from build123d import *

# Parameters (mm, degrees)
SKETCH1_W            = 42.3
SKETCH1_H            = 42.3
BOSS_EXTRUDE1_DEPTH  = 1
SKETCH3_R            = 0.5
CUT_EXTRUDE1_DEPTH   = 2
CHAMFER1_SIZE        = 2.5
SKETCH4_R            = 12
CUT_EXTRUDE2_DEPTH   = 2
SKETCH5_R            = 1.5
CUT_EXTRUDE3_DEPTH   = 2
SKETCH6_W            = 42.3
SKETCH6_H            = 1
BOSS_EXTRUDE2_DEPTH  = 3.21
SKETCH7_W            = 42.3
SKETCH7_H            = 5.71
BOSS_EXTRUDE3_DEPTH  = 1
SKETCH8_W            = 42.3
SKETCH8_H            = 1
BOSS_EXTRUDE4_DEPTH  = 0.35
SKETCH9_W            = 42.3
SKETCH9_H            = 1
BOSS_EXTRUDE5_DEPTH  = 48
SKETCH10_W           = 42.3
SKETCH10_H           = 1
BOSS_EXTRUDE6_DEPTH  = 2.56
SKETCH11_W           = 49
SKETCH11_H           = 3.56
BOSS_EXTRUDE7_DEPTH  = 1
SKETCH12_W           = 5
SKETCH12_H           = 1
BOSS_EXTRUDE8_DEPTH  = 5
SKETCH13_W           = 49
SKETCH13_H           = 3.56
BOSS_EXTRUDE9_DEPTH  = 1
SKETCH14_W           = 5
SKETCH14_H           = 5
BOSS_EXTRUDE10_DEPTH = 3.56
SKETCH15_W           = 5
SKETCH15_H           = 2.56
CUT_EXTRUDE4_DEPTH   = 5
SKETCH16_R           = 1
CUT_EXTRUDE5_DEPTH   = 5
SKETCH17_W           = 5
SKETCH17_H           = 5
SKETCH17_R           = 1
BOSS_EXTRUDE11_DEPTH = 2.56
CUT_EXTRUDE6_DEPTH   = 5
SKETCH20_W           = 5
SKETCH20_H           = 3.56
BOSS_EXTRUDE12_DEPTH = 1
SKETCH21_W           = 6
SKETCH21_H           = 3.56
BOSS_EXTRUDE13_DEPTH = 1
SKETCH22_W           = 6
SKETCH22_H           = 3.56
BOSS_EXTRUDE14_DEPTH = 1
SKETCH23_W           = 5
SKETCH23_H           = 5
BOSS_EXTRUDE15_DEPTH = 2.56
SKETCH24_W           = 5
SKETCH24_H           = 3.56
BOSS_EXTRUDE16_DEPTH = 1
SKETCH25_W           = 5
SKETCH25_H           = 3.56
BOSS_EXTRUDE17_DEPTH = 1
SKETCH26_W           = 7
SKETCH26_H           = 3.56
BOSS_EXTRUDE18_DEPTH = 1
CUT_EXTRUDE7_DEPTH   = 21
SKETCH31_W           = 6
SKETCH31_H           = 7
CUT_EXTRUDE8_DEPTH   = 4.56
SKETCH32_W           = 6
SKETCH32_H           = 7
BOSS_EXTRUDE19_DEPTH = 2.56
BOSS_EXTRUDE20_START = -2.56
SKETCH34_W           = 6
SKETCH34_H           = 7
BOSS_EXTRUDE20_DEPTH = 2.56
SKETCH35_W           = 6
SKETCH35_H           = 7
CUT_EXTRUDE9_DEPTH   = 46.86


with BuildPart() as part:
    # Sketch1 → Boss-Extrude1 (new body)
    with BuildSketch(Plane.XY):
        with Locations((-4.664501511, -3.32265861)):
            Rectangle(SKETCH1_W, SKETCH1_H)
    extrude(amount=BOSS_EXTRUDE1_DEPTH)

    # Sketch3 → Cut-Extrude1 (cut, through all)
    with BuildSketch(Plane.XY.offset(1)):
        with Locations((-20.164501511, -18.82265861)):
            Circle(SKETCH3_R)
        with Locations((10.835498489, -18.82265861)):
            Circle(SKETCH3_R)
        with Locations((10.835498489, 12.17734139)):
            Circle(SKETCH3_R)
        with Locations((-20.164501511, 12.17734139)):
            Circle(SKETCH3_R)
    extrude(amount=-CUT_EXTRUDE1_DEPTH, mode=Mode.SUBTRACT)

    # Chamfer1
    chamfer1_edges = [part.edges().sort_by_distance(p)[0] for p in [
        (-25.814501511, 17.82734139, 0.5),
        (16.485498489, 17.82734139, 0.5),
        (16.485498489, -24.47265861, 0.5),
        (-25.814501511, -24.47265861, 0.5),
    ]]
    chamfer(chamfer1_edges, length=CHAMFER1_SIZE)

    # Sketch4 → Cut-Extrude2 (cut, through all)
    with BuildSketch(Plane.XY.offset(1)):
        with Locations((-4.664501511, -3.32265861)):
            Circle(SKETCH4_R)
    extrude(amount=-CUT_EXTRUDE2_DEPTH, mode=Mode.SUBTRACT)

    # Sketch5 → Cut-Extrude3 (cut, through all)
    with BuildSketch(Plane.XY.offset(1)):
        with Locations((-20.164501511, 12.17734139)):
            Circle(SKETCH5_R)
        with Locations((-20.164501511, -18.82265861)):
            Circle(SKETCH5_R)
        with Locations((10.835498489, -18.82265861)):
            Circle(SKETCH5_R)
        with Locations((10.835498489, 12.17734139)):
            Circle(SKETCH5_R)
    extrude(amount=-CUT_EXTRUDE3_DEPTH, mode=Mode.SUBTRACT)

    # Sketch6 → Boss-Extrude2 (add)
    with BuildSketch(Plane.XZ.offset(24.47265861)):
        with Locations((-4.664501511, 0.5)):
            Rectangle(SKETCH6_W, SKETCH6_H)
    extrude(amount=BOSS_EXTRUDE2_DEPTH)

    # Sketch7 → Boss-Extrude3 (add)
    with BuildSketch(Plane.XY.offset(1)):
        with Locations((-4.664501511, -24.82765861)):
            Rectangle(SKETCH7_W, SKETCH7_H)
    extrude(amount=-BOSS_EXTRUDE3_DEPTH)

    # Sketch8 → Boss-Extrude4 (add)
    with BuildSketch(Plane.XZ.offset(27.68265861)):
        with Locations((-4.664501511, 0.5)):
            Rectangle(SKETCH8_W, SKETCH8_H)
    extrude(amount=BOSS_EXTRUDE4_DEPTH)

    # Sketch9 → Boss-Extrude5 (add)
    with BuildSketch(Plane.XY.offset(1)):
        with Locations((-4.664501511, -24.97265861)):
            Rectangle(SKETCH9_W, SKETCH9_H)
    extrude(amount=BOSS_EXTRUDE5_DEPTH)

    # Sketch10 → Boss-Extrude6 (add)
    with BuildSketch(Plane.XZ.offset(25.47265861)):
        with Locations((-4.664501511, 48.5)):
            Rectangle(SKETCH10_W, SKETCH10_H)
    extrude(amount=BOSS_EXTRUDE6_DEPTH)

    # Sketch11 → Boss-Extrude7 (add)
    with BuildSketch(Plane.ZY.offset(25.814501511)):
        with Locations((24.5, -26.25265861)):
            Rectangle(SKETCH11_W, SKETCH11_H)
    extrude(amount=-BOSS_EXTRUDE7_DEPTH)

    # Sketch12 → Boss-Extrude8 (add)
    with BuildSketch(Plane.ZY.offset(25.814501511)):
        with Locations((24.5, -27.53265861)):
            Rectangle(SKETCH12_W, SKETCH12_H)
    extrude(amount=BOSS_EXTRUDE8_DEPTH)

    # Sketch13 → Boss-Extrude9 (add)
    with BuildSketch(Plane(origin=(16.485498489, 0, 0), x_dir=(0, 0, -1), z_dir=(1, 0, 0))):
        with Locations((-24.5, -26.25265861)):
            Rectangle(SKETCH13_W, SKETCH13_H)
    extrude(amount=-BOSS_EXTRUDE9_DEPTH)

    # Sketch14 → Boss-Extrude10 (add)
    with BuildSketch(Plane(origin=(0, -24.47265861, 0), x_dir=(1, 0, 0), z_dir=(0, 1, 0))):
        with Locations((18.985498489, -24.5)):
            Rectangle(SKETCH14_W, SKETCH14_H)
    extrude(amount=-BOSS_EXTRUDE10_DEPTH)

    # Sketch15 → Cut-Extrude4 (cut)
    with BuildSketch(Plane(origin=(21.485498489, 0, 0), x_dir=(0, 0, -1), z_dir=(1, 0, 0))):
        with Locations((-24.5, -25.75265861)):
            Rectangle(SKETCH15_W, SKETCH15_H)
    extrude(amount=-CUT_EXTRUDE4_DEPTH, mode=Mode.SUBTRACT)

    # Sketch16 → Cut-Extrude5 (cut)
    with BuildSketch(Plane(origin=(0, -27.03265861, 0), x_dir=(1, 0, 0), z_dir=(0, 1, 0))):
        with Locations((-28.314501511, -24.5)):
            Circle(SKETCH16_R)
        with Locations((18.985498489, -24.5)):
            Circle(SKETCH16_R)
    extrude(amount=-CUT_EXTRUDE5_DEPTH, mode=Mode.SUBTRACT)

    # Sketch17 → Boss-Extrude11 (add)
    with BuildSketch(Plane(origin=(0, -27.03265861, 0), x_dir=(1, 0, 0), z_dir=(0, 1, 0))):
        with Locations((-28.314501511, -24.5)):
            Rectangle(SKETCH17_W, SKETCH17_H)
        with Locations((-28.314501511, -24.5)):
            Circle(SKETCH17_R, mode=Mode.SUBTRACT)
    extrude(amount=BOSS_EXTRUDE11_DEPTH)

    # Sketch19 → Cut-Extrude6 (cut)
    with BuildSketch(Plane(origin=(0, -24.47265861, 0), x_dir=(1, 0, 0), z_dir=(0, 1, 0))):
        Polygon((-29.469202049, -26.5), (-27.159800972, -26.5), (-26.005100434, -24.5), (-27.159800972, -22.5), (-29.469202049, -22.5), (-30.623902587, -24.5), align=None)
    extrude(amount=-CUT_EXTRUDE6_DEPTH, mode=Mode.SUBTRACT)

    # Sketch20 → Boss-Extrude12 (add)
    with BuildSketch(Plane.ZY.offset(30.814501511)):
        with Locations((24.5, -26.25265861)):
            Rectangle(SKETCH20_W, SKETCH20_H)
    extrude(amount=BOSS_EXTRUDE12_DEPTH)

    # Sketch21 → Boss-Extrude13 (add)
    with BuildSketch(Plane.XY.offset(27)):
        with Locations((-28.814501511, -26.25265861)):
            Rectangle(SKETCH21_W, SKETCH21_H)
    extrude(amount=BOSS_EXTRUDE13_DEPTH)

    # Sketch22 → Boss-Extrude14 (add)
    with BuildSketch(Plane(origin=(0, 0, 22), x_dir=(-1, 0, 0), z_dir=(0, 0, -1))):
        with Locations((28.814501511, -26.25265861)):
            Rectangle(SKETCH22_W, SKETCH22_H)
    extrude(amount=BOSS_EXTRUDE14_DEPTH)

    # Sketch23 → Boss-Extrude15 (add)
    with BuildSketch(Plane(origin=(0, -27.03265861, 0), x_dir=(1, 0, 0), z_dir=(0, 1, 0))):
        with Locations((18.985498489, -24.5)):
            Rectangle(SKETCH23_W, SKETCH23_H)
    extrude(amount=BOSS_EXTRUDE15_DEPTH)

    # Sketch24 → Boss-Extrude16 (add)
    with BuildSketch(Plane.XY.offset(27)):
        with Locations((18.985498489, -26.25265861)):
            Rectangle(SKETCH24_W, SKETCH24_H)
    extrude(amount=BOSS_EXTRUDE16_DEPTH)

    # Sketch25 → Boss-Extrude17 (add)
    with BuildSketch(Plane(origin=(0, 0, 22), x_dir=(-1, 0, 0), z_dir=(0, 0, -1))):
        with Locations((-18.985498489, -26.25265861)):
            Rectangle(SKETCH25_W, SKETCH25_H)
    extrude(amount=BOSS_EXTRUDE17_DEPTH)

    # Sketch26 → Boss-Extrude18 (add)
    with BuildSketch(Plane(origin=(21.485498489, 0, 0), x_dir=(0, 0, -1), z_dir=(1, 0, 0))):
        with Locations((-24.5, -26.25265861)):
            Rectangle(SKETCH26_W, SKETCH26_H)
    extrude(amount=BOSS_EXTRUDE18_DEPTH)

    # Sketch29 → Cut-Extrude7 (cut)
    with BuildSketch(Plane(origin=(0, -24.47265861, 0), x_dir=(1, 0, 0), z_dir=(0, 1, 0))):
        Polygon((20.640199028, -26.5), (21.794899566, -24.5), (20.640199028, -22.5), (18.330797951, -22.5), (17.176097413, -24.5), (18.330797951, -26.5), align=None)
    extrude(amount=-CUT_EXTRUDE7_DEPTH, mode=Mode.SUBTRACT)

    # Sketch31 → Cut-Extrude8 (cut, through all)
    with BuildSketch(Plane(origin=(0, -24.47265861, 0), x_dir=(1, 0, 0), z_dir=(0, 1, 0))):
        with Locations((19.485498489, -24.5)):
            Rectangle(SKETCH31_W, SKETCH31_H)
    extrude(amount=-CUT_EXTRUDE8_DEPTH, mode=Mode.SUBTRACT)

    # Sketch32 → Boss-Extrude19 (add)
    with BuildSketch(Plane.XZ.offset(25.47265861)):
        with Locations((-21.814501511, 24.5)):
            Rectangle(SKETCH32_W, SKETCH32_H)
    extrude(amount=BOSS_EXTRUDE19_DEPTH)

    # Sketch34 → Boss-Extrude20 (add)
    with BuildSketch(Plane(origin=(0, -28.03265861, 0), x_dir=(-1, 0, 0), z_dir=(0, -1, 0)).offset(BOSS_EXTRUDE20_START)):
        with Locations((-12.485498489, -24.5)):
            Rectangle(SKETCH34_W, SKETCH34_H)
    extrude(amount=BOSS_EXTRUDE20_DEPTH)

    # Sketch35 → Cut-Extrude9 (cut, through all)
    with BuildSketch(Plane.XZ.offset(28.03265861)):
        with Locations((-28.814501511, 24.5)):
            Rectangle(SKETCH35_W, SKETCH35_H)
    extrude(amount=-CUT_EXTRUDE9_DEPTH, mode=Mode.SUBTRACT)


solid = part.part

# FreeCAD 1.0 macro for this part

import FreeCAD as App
import Part
import Sketcher
Q = App.Units.Quantity


def edges_at(feature, points):
    """Names of the edges that pass closest to the given points."""
    edges = feature.Shape.Edges
    near = lambda p: min(range(len(edges)), key=lambda i: edges[i].distToShape(Part.Vertex(*p))[0])
    return sorted({f"Edge{near(p) + 1}" for p in points})


def add_polygon(sketch, points):
    """Adds a closed chain of lines whose ends are joined by coincident constraints."""
    first, n = sketch.GeometryCount, len(points)
    for a, b in zip(points, points[1:] + points[:1]):
        sketch.addGeometry(Part.LineSegment(App.Vector(*a, 0), App.Vector(*b, 0)), False)
    for i in range(n):
        sketch.addConstraint(Sketcher.Constraint("Coincident", first + i, 2, first + (i + 1) % n, 1))

doc = App.newDocument("Part")
body = doc.addObject("PartDesign::Body", "Body")

# Sketch on XY plane
sketch1 = doc.addObject("Sketcher::SketchObject", "Sketch")
body.addObject(sketch1)
sketch1.AttachmentSupport = (doc.XY_Plane, [""])
sketch1.MapMode = "FlatFace"
add_polygon(sketch1, [(-26, 18), (-26, -24), (16, -24), (16, 18)])  # lines 0-3
sketch1.addConstraint([
    Sketcher.Constraint("Vertical", 0),
    Sketcher.Constraint("Horizontal", 1),
    Sketcher.Constraint("Vertical", 2),
    Sketcher.Constraint("Horizontal", 3),
    Sketcher.Constraint("Equal", 3, 0),
    Sketcher.Constraint("DistanceX", 1, 1, 1, 2, Q("42.3 mm")),
    Sketcher.Constraint("DistanceX", 0, 2, -1, 1, Q("25.814502 mm")),
    Sketcher.Constraint("DistanceY", 0, 2, -1, 1, Q("24.472659 mm")),
])
pad1 = doc.addObject("PartDesign::Pad", "Pad")
body.addObject(pad1)
pad1.Profile = sketch1
pad1.Length = 1

# Sketch on XY plane
sketch2 = doc.addObject("Sketcher::SketchObject", "Sketch001")
body.addObject(sketch2)
sketch2.AttachmentSupport = (doc.XY_Plane, [""])
sketch2.MapMode = "FlatFace"
sketch2.AttachmentOffset = App.Placement(App.Vector(0, 0, 1), App.Rotation())
sketch2.addGeometry([
    Part.Circle(App.Vector(-20.2, -18.8, 0), App.Vector(0, 0, 1), 0.5),
    Part.Circle(App.Vector(10.8, -18.8, 0), App.Vector(0, 0, 1), 0.5),
    Part.Circle(App.Vector(10.8, 12.2, 0), App.Vector(0, 0, 1), 0.5),
    Part.Circle(App.Vector(-20.2, 12.2, 0), App.Vector(0, 0, 1), 0.5),
], False)
sketch2.addConstraint([
    Sketcher.Constraint("Equal", 0, 1),
    Sketcher.Constraint("Equal", 1, 2),
    Sketcher.Constraint("Equal", 2, 3),
    Sketcher.Constraint("Horizontal", 0, 3, 1, 3),
    Sketcher.Constraint("Horizontal", 2, 3, 3, 3),
    Sketcher.Constraint("Vertical", 1, 3, 2, 3),
    Sketcher.Constraint("Vertical", 0, 3, 3, 3),
    Sketcher.Constraint("Diameter", 0, Q("1 mm")),
    Sketcher.Constraint("DistanceX", 0, 3, 1, 3, Q("31 mm")),
    Sketcher.Constraint("DistanceY", 1, 3, 2, 3, Q("31 mm")),
    Sketcher.Constraint("DistanceX", 0, 3, -1, 1, Q("20.164502 mm")),
    Sketcher.Constraint("DistanceY", 0, 3, -1, 1, Q("18.822659 mm")),
])
pocket1 = doc.addObject("PartDesign::Pocket", "Pocket")
body.addObject(pocket1)
pocket1.Profile = sketch2
pocket1.Type = "ThroughAll"
doc.recompute()

chamfer = doc.addObject("PartDesign::Chamfer", "Chamfer")
body.addObject(chamfer)
chamfer.Base = (pocket1, edges_at(pocket1, [
    (-25.815, 17.827, 0.5),
    (16.485, 17.827, 0.5),
    (16.485, -24.473, 0.5),
    (-25.815, -24.473, 0.5),
]))
chamfer.Size = 2.5

# Sketch on XY plane
sketch3 = doc.addObject("Sketcher::SketchObject", "Sketch002")
body.addObject(sketch3)
sketch3.AttachmentSupport = (doc.XY_Plane, [""])
sketch3.MapMode = "FlatFace"
sketch3.AttachmentOffset = App.Placement(App.Vector(0, 0, 1), App.Rotation())
sketch3.addGeometry(Part.Circle(App.Vector(-5, -3, 0), App.Vector(0, 0, 1), 12), False)
sketch3.addConstraint([
    Sketcher.Constraint("Diameter", 0, Q("24 mm")),
    Sketcher.Constraint("DistanceX", 0, 3, -1, 1, Q("4.664502 mm")),
    Sketcher.Constraint("DistanceY", 0, 3, -1, 1, Q("3.322659 mm")),
])
pocket2 = doc.addObject("PartDesign::Pocket", "Pocket001")
body.addObject(pocket2)
pocket2.Profile = sketch3
pocket2.Type = "ThroughAll"

# Sketch on XY plane
sketch4 = doc.addObject("Sketcher::SketchObject", "Sketch003")
body.addObject(sketch4)
sketch4.AttachmentSupport = (doc.XY_Plane, [""])
sketch4.MapMode = "FlatFace"
sketch4.AttachmentOffset = App.Placement(App.Vector(0, 0, 1), App.Rotation())
sketch4.addGeometry([
    Part.Circle(App.Vector(-20.2, 12.2, 0), App.Vector(0, 0, 1), 1.5),
    Part.Circle(App.Vector(-20.2, -18.8, 0), App.Vector(0, 0, 1), 1.5),
    Part.Circle(App.Vector(10.8, -18.8, 0), App.Vector(0, 0, 1), 1.5),
    Part.Circle(App.Vector(10.8, 12.2, 0), App.Vector(0, 0, 1), 1.5),
], False)
sketch4.addConstraint([
    Sketcher.Constraint("Equal", 0, 1),
    Sketcher.Constraint("Equal", 1, 2),
    Sketcher.Constraint("Equal", 2, 3),
    Sketcher.Constraint("Horizontal", 1, 3, 2, 3),
    Sketcher.Constraint("Horizontal", 0, 3, 3, 3),
    Sketcher.Constraint("Vertical", 0, 3, 1, 3),
    Sketcher.Constraint("Vertical", 2, 3, 3, 3),
    Sketcher.Constraint("Diameter", 0, Q("3 mm")),
    Sketcher.Constraint("DistanceY", 1, 3, 0, 3, Q("31 mm")),
    Sketcher.Constraint("DistanceX", 1, 3, 2, 3, Q("31 mm")),
    Sketcher.Constraint("DistanceX", 0, 3, -1, 1, Q("20.164502 mm")),
    Sketcher.Constraint("DistanceY", -1, 1, 0, 3, Q("12.177341 mm")),
])
pocket3 = doc.addObject("PartDesign::Pocket", "Pocket002")
body.addObject(pocket3)
pocket3.Profile = sketch4
pocket3.Type = "ThroughAll"

# Sketch on XZ plane
sketch5 = doc.addObject("Sketcher::SketchObject", "Sketch004")
body.addObject(sketch5)
sketch5.AttachmentSupport = (doc.XZ_Plane, [""])
sketch5.MapMode = "FlatFace"
sketch5.AttachmentOffset = App.Placement(App.Vector(0, 0, 24.472659), App.Rotation())
add_polygon(sketch5, [(-25.8, 1), (-25.8, 0), (16.5, 0), (16.5, 1)])  # lines 0-3
sketch5.addConstraint([
    Sketcher.Constraint("Vertical", 0),
    Sketcher.Constraint("Horizontal", 1),
    Sketcher.Constraint("Vertical", 2),
    Sketcher.Constraint("Horizontal", 3),
    Sketcher.Constraint("PointOnObject", 0, 2, -1),
    Sketcher.Constraint("DistanceY", 0, 2, 0, 1, Q("1 mm")),
    Sketcher.Constraint("DistanceX", 1, 1, 1, 2, Q("42.3 mm")),
    Sketcher.Constraint("DistanceX", 0, 2, -1, 1, Q("25.814502 mm")),
])
pad2 = doc.addObject("PartDesign::Pad", "Pad001")
body.addObject(pad2)
pad2.Profile = sketch5
pad2.Length = 3.21

# Sketch on XY plane
sketch6 = doc.addObject("Sketcher::SketchObject", "Sketch005")
body.addObject(sketch6)
sketch6.AttachmentSupport = (doc.XY_Plane, [""])
sketch6.MapMode = "FlatFace"
sketch6.AttachmentOffset = App.Placement(App.Vector(0, 0, 1), App.Rotation())
add_polygon(sketch6, [(-26, -22), (-26, -28), (16, -28), (16, -22)])  # lines 0-3
sketch6.addConstraint([
    Sketcher.Constraint("Vertical", 0),
    Sketcher.Constraint("Horizontal", 1),
    Sketcher.Constraint("Vertical", 2),
    Sketcher.Constraint("Horizontal", 3),
    Sketcher.Constraint("DistanceX", 1, 1, 1, 2, Q("42.3 mm")),
    Sketcher.Constraint("DistanceY", 0, 2, 0, 1, Q("5.71 mm")),
    Sketcher.Constraint("DistanceX", 0, 2, -1, 1, Q("25.814502 mm")),
    Sketcher.Constraint("DistanceY", 0, 2, -1, 1, Q("27.682659 mm")),
])
pad3 = doc.addObject("PartDesign::Pad", "Pad002")
body.addObject(pad3)
pad3.Profile = sketch6
pad3.Length = 1
pad3.Reversed = True

# Sketch on XZ plane
sketch7 = doc.addObject("Sketcher::SketchObject", "Sketch006")
body.addObject(sketch7)
sketch7.AttachmentSupport = (doc.XZ_Plane, [""])
sketch7.MapMode = "FlatFace"
sketch7.AttachmentOffset = App.Placement(App.Vector(0, 0, 27.682659), App.Rotation())
add_polygon(sketch7, [(-25.8, 1), (-25.8, 0), (16.5, 0), (16.5, 1)])  # lines 0-3
sketch7.addConstraint([
    Sketcher.Constraint("Vertical", 0),
    Sketcher.Constraint("Horizontal", 1),
    Sketcher.Constraint("Vertical", 2),
    Sketcher.Constraint("Horizontal", 3),
    Sketcher.Constraint("PointOnObject", 0, 2, -1),
    Sketcher.Constraint("DistanceY", 0, 2, 0, 1, Q("1 mm")),
    Sketcher.Constraint("DistanceX", 1, 1, 1, 2, Q("42.3 mm")),
    Sketcher.Constraint("DistanceX", 0, 2, -1, 1, Q("25.814502 mm")),
])
pad4 = doc.addObject("PartDesign::Pad", "Pad003")
body.addObject(pad4)
pad4.Profile = sketch7
pad4.Length = 0.35

# Sketch on XY plane
sketch8 = doc.addObject("Sketcher::SketchObject", "Sketch007")
body.addObject(sketch8)
sketch8.AttachmentSupport = (doc.XY_Plane, [""])
sketch8.MapMode = "FlatFace"
sketch8.AttachmentOffset = App.Placement(App.Vector(0, 0, 1), App.Rotation())
add_polygon(sketch8, [(-25.8, -24.5), (-25.8, -25.5), (16.5, -25.5), (16.5, -24.5)])  # lines 0-3
sketch8.addConstraint([
    Sketcher.Constraint("Vertical", 0),
    Sketcher.Constraint("Horizontal", 1),
    Sketcher.Constraint("Vertical", 2),
    Sketcher.Constraint("Horizontal", 3),
    Sketcher.Constraint("DistanceY", 0, 2, 0, 1, Q("1 mm")),
    Sketcher.Constraint("DistanceX", 1, 1, 1, 2, Q("42.3 mm")),
    Sketcher.Constraint("DistanceX", 0, 2, -1, 1, Q("25.814502 mm")),
    Sketcher.Constraint("DistanceY", 0, 2, -1, 1, Q("25.472659 mm")),
])
pad5 = doc.addObject("PartDesign::Pad", "Pad004")
body.addObject(pad5)
pad5.Profile = sketch8
pad5.Length = 48

# Sketch on XZ plane
sketch9 = doc.addObject("Sketcher::SketchObject", "Sketch008")
body.addObject(sketch9)
sketch9.AttachmentSupport = (doc.XZ_Plane, [""])
sketch9.MapMode = "FlatFace"
sketch9.AttachmentOffset = App.Placement(App.Vector(0, 0, 25.472659), App.Rotation())
add_polygon(sketch9, [(-25.8, 49), (-25.8, 48), (16.5, 48), (16.5, 49)])  # lines 0-3
sketch9.addConstraint([
    Sketcher.Constraint("Vertical", 0),
    Sketcher.Constraint("Horizontal", 1),
    Sketcher.Constraint("Vertical", 2),
    Sketcher.Constraint("Horizontal", 3),
    Sketcher.Constraint("DistanceY", 0, 2, 0, 1, Q("1 mm")),
    Sketcher.Constraint("DistanceX", 1, 1, 1, 2, Q("42.3 mm")),
    Sketcher.Constraint("DistanceY", -1, 1, 0, 2, Q("48 mm")),
    Sketcher.Constraint("DistanceX", 0, 2, -1, 1, Q("25.814502 mm")),
])
pad6 = doc.addObject("PartDesign::Pad", "Pad005")
body.addObject(pad6)
pad6.Profile = sketch9
pad6.Length = 2.56

# Sketch on YZ plane
sketch10 = doc.addObject("Sketcher::SketchObject", "Sketch009")
body.addObject(sketch10)
sketch10.AttachmentSupport = (doc.YZ_Plane, [""])
sketch10.MapMode = "FlatFace"
sketch10.AttachmentOffset = App.Placement(App.Vector(0, 0, -25.814502), App.Rotation())
add_polygon(sketch10, [(-24.5, 0), (-28, 0), (-28, 49), (-24.5, 49)])  # lines 0-3
sketch10.addConstraint([
    Sketcher.Constraint("Horizontal", 0),
    Sketcher.Constraint("Vertical", 1),
    Sketcher.Constraint("Horizontal", 2),
    Sketcher.Constraint("Vertical", 3),
    Sketcher.Constraint("PointOnObject", 0, 2, -1),
    Sketcher.Constraint("DistanceY", 1, 1, 1, 2, Q("49 mm")),
    Sketcher.Constraint("DistanceX", 0, 2, 0, 1, Q("3.56 mm")),
    Sketcher.Constraint("DistanceX", 0, 2, -1, 1, Q("28.032659 mm")),
])
pad7 = doc.addObject("PartDesign::Pad", "Pad006")
body.addObject(pad7)
pad7.Profile = sketch10
pad7.Length = 1

# Sketch on YZ plane
sketch11 = doc.addObject("Sketcher::SketchObject", "Sketch010")
body.addObject(sketch11)
sketch11.AttachmentSupport = (doc.YZ_Plane, [""])
sketch11.MapMode = "FlatFace"
sketch11.AttachmentOffset = App.Placement(App.Vector(0, 0, -25.814502), App.Rotation())
add_polygon(sketch11, [(-27, 22), (-28, 22), (-28, 27), (-27, 27)])  # lines 0-3
sketch11.addConstraint([
    Sketcher.Constraint("Horizontal", 0),
    Sketcher.Constraint("Vertical", 1),
    Sketcher.Constraint("Horizontal", 2),
    Sketcher.Constraint("Vertical", 3),
    Sketcher.Constraint("DistanceX", 0, 2, 0, 1, Q("1 mm")),
    Sketcher.Constraint("DistanceY", 1, 1, 1, 2, Q("5 mm")),
    Sketcher.Constraint("DistanceY", -1, 1, 0, 2, Q("22 mm")),
    Sketcher.Constraint("DistanceX", 0, 2, -1, 1, Q("28.032659 mm")),
])
pad8 = doc.addObject("PartDesign::Pad", "Pad007")
body.addObject(pad8)
pad8.Profile = sketch11
pad8.Length = 5
pad8.Reversed = True

# Sketch on YZ plane
sketch12 = doc.addObject("Sketcher::SketchObject", "Sketch011")
body.addObject(sketch12)
sketch12.AttachmentSupport = (doc.YZ_Plane, [""])
sketch12.MapMode = "FlatFace"
sketch12.AttachmentOffset = App.Placement(App.Vector(0, 0, 16.485498), App.Rotation())
add_polygon(sketch12, [(-24.5, 49), (-28, 49), (-28, 0), (-24.5, 0)])  # lines 0-3
sketch12.addConstraint([
    Sketcher.Constraint("Horizontal", 0),
    Sketcher.Constraint("Vertical", 1),
    Sketcher.Constraint("Horizontal", 2),
    Sketcher.Constraint("Vertical", 3),
    Sketcher.Constraint("PointOnObject", 1, 2, -1),
    Sketcher.Constraint("DistanceY", 1, 2, 1, 1, Q("49 mm")),
    Sketcher.Constraint("DistanceX", 0, 2, 0, 1, Q("3.56 mm")),
    Sketcher.Constraint("DistanceX", 0, 2, -1, 1, Q("28.032659 mm")),
])
pad9 = doc.addObject("PartDesign::Pad", "Pad008")
body.addObject(pad9)
pad9.Profile = sketch12
pad9.Length = 1
pad9.Reversed = True

# Sketch on XZ plane
sketch13 = doc.addObject("Sketcher::SketchObject", "Sketch012")
body.addObject(sketch13)
sketch13.AttachmentSupport = (doc.XZ_Plane, [""])
sketch13.MapMode = "FlatFace"
sketch13.AttachmentOffset = App.Placement(App.Vector(0, 0, 24.472659), App.Rotation())
add_polygon(sketch13, [(16, 22), (16, 27), (21, 27), (21, 22)])  # lines 0-3
sketch13.addConstraint([
    Sketcher.Constraint("Vertical", 0),
    Sketcher.Constraint("Horizontal", 1),
    Sketcher.Constraint("Vertical", 2),
    Sketcher.Constraint("Horizontal", 3),
    Sketcher.Constraint("Equal", 3, 0),
    Sketcher.Constraint("DistanceX", 1, 1, 1, 2, Q("5 mm")),
    Sketcher.Constraint("DistanceY", -1, 1, 0, 2, Q("27 mm")),
    Sketcher.Constraint("DistanceX", -1, 1, 0, 2, Q("16.485498 mm")),
])
pad10 = doc.addObject("PartDesign::Pad", "Pad009")
body.addObject(pad10)
pad10.Profile = sketch13
pad10.Length = 3.56

# Sketch on YZ plane
sketch14 = doc.addObject("Sketcher::SketchObject", "Sketch013")
body.addObject(sketch14)
sketch14.AttachmentSupport = (doc.YZ_Plane, [""])
sketch14.MapMode = "FlatFace"
sketch14.AttachmentOffset = App.Placement(App.Vector(0, 0, 21.485498), App.Rotation())
add_polygon(sketch14, [(-24.5, 27), (-27, 27), (-27, 22), (-24.5, 22)])  # lines 0-3
sketch14.addConstraint([
    Sketcher.Constraint("Horizontal", 0),
    Sketcher.Constraint("Vertical", 1),
    Sketcher.Constraint("Horizontal", 2),
    Sketcher.Constraint("Vertical", 3),
    Sketcher.Constraint("DistanceY", 1, 2, 1, 1, Q("5 mm")),
    Sketcher.Constraint("DistanceY", -1, 1, 0, 2, Q("27 mm")),
    Sketcher.Constraint("DistanceX", 0, 2, 0, 1, Q("2.56 mm")),
    Sketcher.Constraint("DistanceX", 0, 2, -1, 1, Q("27.032659 mm")),
])
pocket4 = doc.addObject("PartDesign::Pocket", "Pocket003")
body.addObject(pocket4)
pocket4.Profile = sketch14
pocket4.Length = 5

# Sketch on XZ plane
sketch15 = doc.addObject("Sketcher::SketchObject", "Sketch014")
body.addObject(sketch15)
sketch15.AttachmentSupport = (doc.XZ_Plane, [""])
sketch15.MapMode = "FlatFace"
sketch15.AttachmentOffset = App.Placement(App.Vector(0, 0, 27.032659), App.Rotation())
sketch15.addGeometry([
    Part.Circle(App.Vector(-28.3, 24.5, 0), App.Vector(0, 0, 1), 1),
    Part.Circle(App.Vector(19, 24.5, 0), App.Vector(0, 0, 1), 1),
], False)
sketch15.addConstraint([
    Sketcher.Constraint("Equal", 0, 1),
    Sketcher.Constraint("Horizontal", 0, 3, 1, 3),
    Sketcher.Constraint("Diameter", 0, Q("2 mm")),
    Sketcher.Constraint("DistanceY", -1, 1, 0, 3, Q("24.5 mm")),
    Sketcher.Constraint("DistanceX", 0, 3, 1, 3, Q("47.3 mm")),
    Sketcher.Constraint("DistanceX", 0, 3, -1, 1, Q("28.314502 mm")),
])
pocket5 = doc.addObject("PartDesign::Pocket", "Pocket004")
body.addObject(pocket5)
pocket5.Profile = sketch15
pocket5.Length = 5
pocket5.Reversed = True

# Sketch on XZ plane
sketch16 = doc.addObject("Sketcher::SketchObject", "Sketch015")
body.addObject(sketch16)
sketch16.AttachmentSupport = (doc.XZ_Plane, [""])
sketch16.MapMode = "FlatFace"
sketch16.AttachmentOffset = App.Placement(App.Vector(0, 0, 27.032659), App.Rotation())
add_polygon(sketch16, [(-30.8, 22), (-30.8, 27), (-25.8, 27), (-25.8, 22)])  # lines 0-3
sketch16.addGeometry(Part.Circle(App.Vector(-28.3, 24.5, 0), App.Vector(0, 0, 1), 1), False)  # 4
sketch16.addConstraint([
    Sketcher.Constraint("Vertical", 0),
    Sketcher.Constraint("Horizontal", 1),
    Sketcher.Constraint("Vertical", 2),
    Sketcher.Constraint("Horizontal", 3),
    Sketcher.Constraint("Equal", 3, 0),
    Sketcher.Constraint("Diameter", 4, Q("2 mm")),
    Sketcher.Constraint("DistanceX", 1, 1, 1, 2, Q("5 mm")),
    Sketcher.Constraint("DistanceY", -1, 1, 0, 2, Q("27 mm")),
    Sketcher.Constraint("DistanceY", -1, 1, 4, 3, Q("24.5 mm")),
    Sketcher.Constraint("DistanceX", 0, 2, 4, 3, Q("2.5 mm")),
    Sketcher.Constraint("DistanceX", 4, 3, -1, 1, Q("28.314502 mm")),
])
pad11 = doc.addObject("PartDesign::Pad", "Pad010")
body.addObject(pad11)
pad11.Profile = sketch16
pad11.Length = 2.56
pad11.Reversed = True

# Sketch on XZ plane
sketch17 = doc.addObject("Sketcher::SketchObject", "Sketch016")
body.addObject(sketch17)
sketch17.AttachmentSupport = (doc.XZ_Plane, [""])
sketch17.MapMode = "FlatFace"
sketch17.AttachmentOffset = App.Placement(App.Vector(0, 0, 24.472659), App.Rotation())
add_polygon(sketch17, [(-29.5, 26.5), (-27.2, 26.5), (-26, 24.5), (-27.2, 22.5), (-29.5, 22.5), (-30.6, 24.5)])  # lines 0-5
sketch17.addConstraint([
    Sketcher.Constraint("Horizontal", 0),
    Sketcher.Constraint("Horizontal", 3),
    Sketcher.Constraint("Parallel", 1, 4),
    Sketcher.Constraint("Parallel", 2, 5),
    Sketcher.Constraint("Horizontal", 1, 2, 4, 2),
    Sketcher.Constraint("Vertical", 0, 2, 2, 2),
    Sketcher.Constraint("Vertical", 3, 2, 5, 2),
    Sketcher.Constraint("Angle", 1, Q("-60 deg")),
    Sketcher.Constraint("DistanceY", 1, 2, 0, 2, Q("2 mm")),
    Sketcher.Constraint("DistanceY", -1, 1, 0, 2, Q("26.5 mm")),
    Sketcher.Constraint("DistanceX", 0, 1, 0, 2, Q("2.309401 mm")),
    Sketcher.Constraint("DistanceX", 0, 2, -1, 1, Q("27.159801 mm")),
])
pocket6 = doc.addObject("PartDesign::Pocket", "Pocket005")
body.addObject(pocket6)
pocket6.Profile = sketch17
pocket6.Length = 5
pocket6.Reversed = True

# Sketch on YZ plane
sketch18 = doc.addObject("Sketcher::SketchObject", "Sketch017")
body.addObject(sketch18)
sketch18.AttachmentSupport = (doc.YZ_Plane, [""])
sketch18.MapMode = "FlatFace"
sketch18.AttachmentOffset = App.Placement(App.Vector(0, 0, -30.814502), App.Rotation())
add_polygon(sketch18, [(-24.5, 22), (-28, 22), (-28, 27), (-24.5, 27)])  # lines 0-3
sketch18.addConstraint([
    Sketcher.Constraint("Horizontal", 0),
    Sketcher.Constraint("Vertical", 1),
    Sketcher.Constraint("Horizontal", 2),
    Sketcher.Constraint("Vertical", 3),
    Sketcher.Constraint("DistanceY", 1, 1, 1, 2, Q("5 mm")),
    Sketcher.Constraint("DistanceY", -1, 1, 0, 2, Q("22 mm")),
    Sketcher.Constraint("DistanceX", 0, 2, 0, 1, Q("3.56 mm")),
    Sketcher.Constraint("DistanceX", 0, 2, -1, 1, Q("28.032659 mm")),
])
pad12 = doc.addObject("PartDesign::Pad", "Pad011")
body.addObject(pad12)
pad12.Profile = sketch18
pad12.Length = 1
pad12.Reversed = True

# Sketch on XY plane
sketch19 = doc.addObject("Sketcher::SketchObject", "Sketch018")
body.addObject(sketch19)
sketch19.AttachmentSupport = (doc.XY_Plane, [""])
sketch19.MapMode = "FlatFace"
sketch19.AttachmentOffset = App.Placement(App.Vector(0, 0, 27), App.Rotation())
add_polygon(sketch19, [(-31.8, -24.5), (-31.8, -28), (-25.8, -28), (-25.8, -24.5)])  # lines 0-3
sketch19.addConstraint([
    Sketcher.Constraint("Vertical", 0),
    Sketcher.Constraint("Horizontal", 1),
    Sketcher.Constraint("Vertical", 2),
    Sketcher.Constraint("Horizontal", 3),
    Sketcher.Constraint("DistanceX", 1, 1, 1, 2, Q("6 mm")),
    Sketcher.Constraint("DistanceY", 0, 2, 0, 1, Q("3.56 mm")),
    Sketcher.Constraint("DistanceX", 0, 2, -1, 1, Q("31.814502 mm")),
    Sketcher.Constraint("DistanceY", 0, 2, -1, 1, Q("28.032659 mm")),
])
pad13 = doc.addObject("PartDesign::Pad", "Pad012")
body.addObject(pad13)
pad13.Profile = sketch19
pad13.Length = 1

# Sketch on XY plane
sketch20 = doc.addObject("Sketcher::SketchObject", "Sketch019")
body.addObject(sketch20)
sketch20.AttachmentSupport = (doc.XY_Plane, [""])
sketch20.MapMode = "FlatFace"
sketch20.AttachmentOffset = App.Placement(App.Vector(0, 0, 22), App.Rotation())
add_polygon(sketch20, [(-25.8, -24.5), (-25.8, -28), (-31.8, -28), (-31.8, -24.5)])  # lines 0-3
sketch20.addConstraint([
    Sketcher.Constraint("Vertical", 0),
    Sketcher.Constraint("Horizontal", 1),
    Sketcher.Constraint("Vertical", 2),
    Sketcher.Constraint("Horizontal", 3),
    Sketcher.Constraint("DistanceX", 1, 2, 1, 1, Q("6 mm")),
    Sketcher.Constraint("DistanceY", 0, 2, 0, 1, Q("3.56 mm")),
    Sketcher.Constraint("DistanceX", 0, 2, -1, 1, Q("25.814502 mm")),
    Sketcher.Constraint("DistanceY", 0, 2, -1, 1, Q("28.032659 mm")),
])
pad14 = doc.addObject("PartDesign::Pad", "Pad013")
body.addObject(pad14)
pad14.Profile = sketch20
pad14.Length = 1
pad14.Reversed = True

# Sketch on XZ plane
sketch21 = doc.addObject("Sketcher::SketchObject", "Sketch020")
body.addObject(sketch21)
sketch21.AttachmentSupport = (doc.XZ_Plane, [""])
sketch21.MapMode = "FlatFace"
sketch21.AttachmentOffset = App.Placement(App.Vector(0, 0, 27.032659), App.Rotation())
add_polygon(sketch21, [(16, 22), (16, 27), (21, 27), (21, 22)])  # lines 0-3
sketch21.addConstraint([
    Sketcher.Constraint("Vertical", 0),
    Sketcher.Constraint("Horizontal", 1),
    Sketcher.Constraint("Vertical", 2),
    Sketcher.Constraint("Horizontal", 3),
    Sketcher.Constraint("Equal", 3, 0),
    Sketcher.Constraint("DistanceX", 1, 1, 1, 2, Q("5 mm")),
    Sketcher.Constraint("DistanceY", -1, 1, 0, 2, Q("27 mm")),
    Sketcher.Constraint("DistanceX", -1, 1, 0, 2, Q("16.485498 mm")),
])
pad15 = doc.addObject("PartDesign::Pad", "Pad014")
body.addObject(pad15)
pad15.Profile = sketch21
pad15.Length = 2.56
pad15.Reversed = True

# Sketch on XY plane
sketch22 = doc.addObject("Sketcher::SketchObject", "Sketch021")
body.addObject(sketch22)
sketch22.AttachmentSupport = (doc.XY_Plane, [""])
sketch22.MapMode = "FlatFace"
sketch22.AttachmentOffset = App.Placement(App.Vector(0, 0, 27), App.Rotation())
add_polygon(sketch22, [(16.5, -24.5), (16.5, -28), (21.5, -28), (21.5, -24.5)])  # lines 0-3
sketch22.addConstraint([
    Sketcher.Constraint("Vertical", 0),
    Sketcher.Constraint("Horizontal", 1),
    Sketcher.Constraint("Vertical", 2),
    Sketcher.Constraint("Horizontal", 3),
    Sketcher.Constraint("DistanceX", 1, 1, 1, 2, Q("5 mm")),
    Sketcher.Constraint("DistanceY", 0, 2, 0, 1, Q("3.56 mm")),
    Sketcher.Constraint("DistanceX", -1, 1, 0, 2, Q("16.485498 mm")),
    Sketcher.Constraint("DistanceY", 0, 2, -1, 1, Q("28.032659 mm")),
])
pad16 = doc.addObject("PartDesign::Pad", "Pad015")
body.addObject(pad16)
pad16.Profile = sketch22
pad16.Length = 1

# Sketch on XY plane
sketch23 = doc.addObject("Sketcher::SketchObject", "Sketch022")
body.addObject(sketch23)
sketch23.AttachmentSupport = (doc.XY_Plane, [""])
sketch23.MapMode = "FlatFace"
sketch23.AttachmentOffset = App.Placement(App.Vector(0, 0, 22), App.Rotation())
add_polygon(sketch23, [(21.5, -24.5), (21.5, -28), (16.5, -28), (16.5, -24.5)])  # lines 0-3
sketch23.addConstraint([
    Sketcher.Constraint("Vertical", 0),
    Sketcher.Constraint("Horizontal", 1),
    Sketcher.Constraint("Vertical", 2),
    Sketcher.Constraint("Horizontal", 3),
    Sketcher.Constraint("DistanceX", 1, 2, 1, 1, Q("5 mm")),
    Sketcher.Constraint("DistanceY", 0, 2, 0, 1, Q("3.56 mm")),
    Sketcher.Constraint("DistanceX", -1, 1, 0, 2, Q("21.485498 mm")),
    Sketcher.Constraint("DistanceY", 0, 2, -1, 1, Q("28.032659 mm")),
])
pad17 = doc.addObject("PartDesign::Pad", "Pad016")
body.addObject(pad17)
pad17.Profile = sketch23
pad17.Length = 1
pad17.Reversed = True

# Sketch on YZ plane
sketch24 = doc.addObject("Sketcher::SketchObject", "Sketch023")
body.addObject(sketch24)
sketch24.AttachmentSupport = (doc.YZ_Plane, [""])
sketch24.MapMode = "FlatFace"
sketch24.AttachmentOffset = App.Placement(App.Vector(0, 0, 21.485498), App.Rotation())
add_polygon(sketch24, [(-24.5, 28), (-28, 28), (-28, 21), (-24.5, 21)])  # lines 0-3
sketch24.addConstraint([
    Sketcher.Constraint("Horizontal", 0),
    Sketcher.Constraint("Vertical", 1),
    Sketcher.Constraint("Horizontal", 2),
    Sketcher.Constraint("Vertical", 3),
    Sketcher.Constraint("DistanceY", 1, 2, 1, 1, Q("7 mm")),
    Sketcher.Constraint("DistanceY", -1, 1, 0, 2, Q("28 mm")),
    Sketcher.Constraint("DistanceX", 0, 2, 0, 1, Q("3.56 mm")),
    Sketcher.Constraint("DistanceX", 0, 2, -1, 1, Q("28.032659 mm")),
])
pad18 = doc.addObject("PartDesign::Pad", "Pad017")
body.addObject(pad18)
pad18.Profile = sketch24
pad18.Length = 1

# Sketch on XZ plane
sketch25 = doc.addObject("Sketcher::SketchObject", "Sketch024")
body.addObject(sketch25)
sketch25.AttachmentSupport = (doc.XZ_Plane, [""])
sketch25.MapMode = "FlatFace"
sketch25.AttachmentOffset = App.Placement(App.Vector(0, 0, 24.472659), App.Rotation())
add_polygon(sketch25, [(20.6, 26.5), (21.8, 24.5), (20.6, 22.5), (18.3, 22.5), (17.2, 24.5), (18.3, 26.5)])  # lines 0-5
sketch25.addConstraint([
    Sketcher.Constraint("Horizontal", 2),
    Sketcher.Constraint("Horizontal", 5),
    Sketcher.Constraint("Parallel", 0, 3),
    Sketcher.Constraint("Parallel", 1, 4),
    Sketcher.Constraint("Horizontal", 0, 2, 3, 2),
    Sketcher.Constraint("Vertical", 2, 2, 4, 2),
    Sketcher.Constraint("Vertical", 1, 2, 5, 2),
    Sketcher.Constraint("Angle", 0, Q("-60 deg")),
    Sketcher.Constraint("DistanceY", 1, 2, 0, 2, Q("2 mm")),
    Sketcher.Constraint("DistanceY", -1, 1, 0, 2, Q("24.5 mm")),
    Sketcher.Constraint("DistanceX", 2, 2, 2, 1, Q("2.309401 mm")),
    Sketcher.Constraint("DistanceX", -1, 1, 0, 2, Q("21.7949 mm")),
])
pocket7 = doc.addObject("PartDesign::Pocket", "Pocket006")
body.addObject(pocket7)
pocket7.Profile = sketch25
pocket7.Length = 21
pocket7.Reversed = True

# Sketch on XZ plane
sketch26 = doc.addObject("Sketcher::SketchObject", "Sketch025")
body.addObject(sketch26)
sketch26.AttachmentSupport = (doc.XZ_Plane, [""])
sketch26.MapMode = "FlatFace"
sketch26.AttachmentOffset = App.Placement(App.Vector(0, 0, 24.472659), App.Rotation())
add_polygon(sketch26, [(16, 21), (16, 28), (22, 28), (22, 21)])  # lines 0-3
sketch26.addConstraint([
    Sketcher.Constraint("Vertical", 0),
    Sketcher.Constraint("Horizontal", 1),
    Sketcher.Constraint("Vertical", 2),
    Sketcher.Constraint("Horizontal", 3),
    Sketcher.Constraint("DistanceX", 1, 1, 1, 2, Q("6 mm")),
    Sketcher.Constraint("DistanceY", 0, 1, 0, 2, Q("7 mm")),
    Sketcher.Constraint("DistanceY", -1, 1, 0, 2, Q("28 mm")),
    Sketcher.Constraint("DistanceX", -1, 1, 0, 2, Q("16.485498 mm")),
])
pocket8 = doc.addObject("PartDesign::Pocket", "Pocket007")
body.addObject(pocket8)
pocket8.Profile = sketch26
pocket8.Type = "ThroughAll"
pocket8.Reversed = True

# Sketch on XZ plane
sketch27 = doc.addObject("Sketcher::SketchObject", "Sketch026")
body.addObject(sketch27)
sketch27.AttachmentSupport = (doc.XZ_Plane, [""])
sketch27.MapMode = "FlatFace"
sketch27.AttachmentOffset = App.Placement(App.Vector(0, 0, 25.472659), App.Rotation())
add_polygon(sketch27, [(-25, 28), (-25, 21), (-19, 21), (-19, 28)])  # lines 0-3
sketch27.addConstraint([
    Sketcher.Constraint("Vertical", 0),
    Sketcher.Constraint("Horizontal", 1),
    Sketcher.Constraint("Vertical", 2),
    Sketcher.Constraint("Horizontal", 3),
    Sketcher.Constraint("DistanceX", 1, 1, 1, 2, Q("6 mm")),
    Sketcher.Constraint("DistanceY", 0, 2, 0, 1, Q("7 mm")),
    Sketcher.Constraint("DistanceY", -1, 1, 0, 2, Q("21 mm")),
    Sketcher.Constraint("DistanceX", 0, 2, -1, 1, Q("24.814502 mm")),
])
pad19 = doc.addObject("PartDesign::Pad", "Pad018")
body.addObject(pad19)
pad19.Profile = sketch27
pad19.Length = 2.56

# Sketch on XZ plane
sketch28 = doc.addObject("Sketcher::SketchObject", "Sketch027")
body.addObject(sketch28)
sketch28.AttachmentSupport = (doc.XZ_Plane, [""])
sketch28.MapMode = "FlatFace"
sketch28.AttachmentOffset = App.Placement(App.Vector(0, 0, 25.472659), App.Rotation())
add_polygon(sketch28, [(15, 21), (15, 28), (9, 28), (9, 21)])  # lines 0-3
sketch28.addConstraint([
    Sketcher.Constraint("Vertical", 0),
    Sketcher.Constraint("Horizontal", 1),
    Sketcher.Constraint("Vertical", 2),
    Sketcher.Constraint("Horizontal", 3),
    Sketcher.Constraint("DistanceX", 1, 2, 1, 1, Q("6 mm")),
    Sketcher.Constraint("DistanceY", 0, 1, 0, 2, Q("7 mm")),
    Sketcher.Constraint("DistanceY", -1, 1, 0, 2, Q("28 mm")),
    Sketcher.Constraint("DistanceX", -1, 1, 0, 2, Q("15.485498 mm")),
])
pad20 = doc.addObject("PartDesign::Pad", "Pad019")
body.addObject(pad20)
pad20.Profile = sketch28
pad20.Length = 2.56

# Sketch on XZ plane
sketch29 = doc.addObject("Sketcher::SketchObject", "Sketch028")
body.addObject(sketch29)
sketch29.AttachmentSupport = (doc.XZ_Plane, [""])
sketch29.MapMode = "FlatFace"
sketch29.AttachmentOffset = App.Placement(App.Vector(0, 0, 28.032659), App.Rotation())
add_polygon(sketch29, [(-32, 28), (-32, 21), (-26, 21), (-26, 28)])  # lines 0-3
sketch29.addConstraint([
    Sketcher.Constraint("Vertical", 0),
    Sketcher.Constraint("Horizontal", 1),
    Sketcher.Constraint("Vertical", 2),
    Sketcher.Constraint("Horizontal", 3),
    Sketcher.Constraint("DistanceX", 1, 1, 1, 2, Q("6 mm")),
    Sketcher.Constraint("DistanceY", 0, 2, 0, 1, Q("7 mm")),
    Sketcher.Constraint("DistanceY", -1, 1, 0, 2, Q("21 mm")),
    Sketcher.Constraint("DistanceX", 0, 2, -1, 1, Q("31.814502 mm")),
])
pocket9 = doc.addObject("PartDesign::Pocket", "Pocket008")
body.addObject(pocket9)
pocket9.Profile = sketch29
pocket9.Type = "ThroughAll"

doc.recompute()
